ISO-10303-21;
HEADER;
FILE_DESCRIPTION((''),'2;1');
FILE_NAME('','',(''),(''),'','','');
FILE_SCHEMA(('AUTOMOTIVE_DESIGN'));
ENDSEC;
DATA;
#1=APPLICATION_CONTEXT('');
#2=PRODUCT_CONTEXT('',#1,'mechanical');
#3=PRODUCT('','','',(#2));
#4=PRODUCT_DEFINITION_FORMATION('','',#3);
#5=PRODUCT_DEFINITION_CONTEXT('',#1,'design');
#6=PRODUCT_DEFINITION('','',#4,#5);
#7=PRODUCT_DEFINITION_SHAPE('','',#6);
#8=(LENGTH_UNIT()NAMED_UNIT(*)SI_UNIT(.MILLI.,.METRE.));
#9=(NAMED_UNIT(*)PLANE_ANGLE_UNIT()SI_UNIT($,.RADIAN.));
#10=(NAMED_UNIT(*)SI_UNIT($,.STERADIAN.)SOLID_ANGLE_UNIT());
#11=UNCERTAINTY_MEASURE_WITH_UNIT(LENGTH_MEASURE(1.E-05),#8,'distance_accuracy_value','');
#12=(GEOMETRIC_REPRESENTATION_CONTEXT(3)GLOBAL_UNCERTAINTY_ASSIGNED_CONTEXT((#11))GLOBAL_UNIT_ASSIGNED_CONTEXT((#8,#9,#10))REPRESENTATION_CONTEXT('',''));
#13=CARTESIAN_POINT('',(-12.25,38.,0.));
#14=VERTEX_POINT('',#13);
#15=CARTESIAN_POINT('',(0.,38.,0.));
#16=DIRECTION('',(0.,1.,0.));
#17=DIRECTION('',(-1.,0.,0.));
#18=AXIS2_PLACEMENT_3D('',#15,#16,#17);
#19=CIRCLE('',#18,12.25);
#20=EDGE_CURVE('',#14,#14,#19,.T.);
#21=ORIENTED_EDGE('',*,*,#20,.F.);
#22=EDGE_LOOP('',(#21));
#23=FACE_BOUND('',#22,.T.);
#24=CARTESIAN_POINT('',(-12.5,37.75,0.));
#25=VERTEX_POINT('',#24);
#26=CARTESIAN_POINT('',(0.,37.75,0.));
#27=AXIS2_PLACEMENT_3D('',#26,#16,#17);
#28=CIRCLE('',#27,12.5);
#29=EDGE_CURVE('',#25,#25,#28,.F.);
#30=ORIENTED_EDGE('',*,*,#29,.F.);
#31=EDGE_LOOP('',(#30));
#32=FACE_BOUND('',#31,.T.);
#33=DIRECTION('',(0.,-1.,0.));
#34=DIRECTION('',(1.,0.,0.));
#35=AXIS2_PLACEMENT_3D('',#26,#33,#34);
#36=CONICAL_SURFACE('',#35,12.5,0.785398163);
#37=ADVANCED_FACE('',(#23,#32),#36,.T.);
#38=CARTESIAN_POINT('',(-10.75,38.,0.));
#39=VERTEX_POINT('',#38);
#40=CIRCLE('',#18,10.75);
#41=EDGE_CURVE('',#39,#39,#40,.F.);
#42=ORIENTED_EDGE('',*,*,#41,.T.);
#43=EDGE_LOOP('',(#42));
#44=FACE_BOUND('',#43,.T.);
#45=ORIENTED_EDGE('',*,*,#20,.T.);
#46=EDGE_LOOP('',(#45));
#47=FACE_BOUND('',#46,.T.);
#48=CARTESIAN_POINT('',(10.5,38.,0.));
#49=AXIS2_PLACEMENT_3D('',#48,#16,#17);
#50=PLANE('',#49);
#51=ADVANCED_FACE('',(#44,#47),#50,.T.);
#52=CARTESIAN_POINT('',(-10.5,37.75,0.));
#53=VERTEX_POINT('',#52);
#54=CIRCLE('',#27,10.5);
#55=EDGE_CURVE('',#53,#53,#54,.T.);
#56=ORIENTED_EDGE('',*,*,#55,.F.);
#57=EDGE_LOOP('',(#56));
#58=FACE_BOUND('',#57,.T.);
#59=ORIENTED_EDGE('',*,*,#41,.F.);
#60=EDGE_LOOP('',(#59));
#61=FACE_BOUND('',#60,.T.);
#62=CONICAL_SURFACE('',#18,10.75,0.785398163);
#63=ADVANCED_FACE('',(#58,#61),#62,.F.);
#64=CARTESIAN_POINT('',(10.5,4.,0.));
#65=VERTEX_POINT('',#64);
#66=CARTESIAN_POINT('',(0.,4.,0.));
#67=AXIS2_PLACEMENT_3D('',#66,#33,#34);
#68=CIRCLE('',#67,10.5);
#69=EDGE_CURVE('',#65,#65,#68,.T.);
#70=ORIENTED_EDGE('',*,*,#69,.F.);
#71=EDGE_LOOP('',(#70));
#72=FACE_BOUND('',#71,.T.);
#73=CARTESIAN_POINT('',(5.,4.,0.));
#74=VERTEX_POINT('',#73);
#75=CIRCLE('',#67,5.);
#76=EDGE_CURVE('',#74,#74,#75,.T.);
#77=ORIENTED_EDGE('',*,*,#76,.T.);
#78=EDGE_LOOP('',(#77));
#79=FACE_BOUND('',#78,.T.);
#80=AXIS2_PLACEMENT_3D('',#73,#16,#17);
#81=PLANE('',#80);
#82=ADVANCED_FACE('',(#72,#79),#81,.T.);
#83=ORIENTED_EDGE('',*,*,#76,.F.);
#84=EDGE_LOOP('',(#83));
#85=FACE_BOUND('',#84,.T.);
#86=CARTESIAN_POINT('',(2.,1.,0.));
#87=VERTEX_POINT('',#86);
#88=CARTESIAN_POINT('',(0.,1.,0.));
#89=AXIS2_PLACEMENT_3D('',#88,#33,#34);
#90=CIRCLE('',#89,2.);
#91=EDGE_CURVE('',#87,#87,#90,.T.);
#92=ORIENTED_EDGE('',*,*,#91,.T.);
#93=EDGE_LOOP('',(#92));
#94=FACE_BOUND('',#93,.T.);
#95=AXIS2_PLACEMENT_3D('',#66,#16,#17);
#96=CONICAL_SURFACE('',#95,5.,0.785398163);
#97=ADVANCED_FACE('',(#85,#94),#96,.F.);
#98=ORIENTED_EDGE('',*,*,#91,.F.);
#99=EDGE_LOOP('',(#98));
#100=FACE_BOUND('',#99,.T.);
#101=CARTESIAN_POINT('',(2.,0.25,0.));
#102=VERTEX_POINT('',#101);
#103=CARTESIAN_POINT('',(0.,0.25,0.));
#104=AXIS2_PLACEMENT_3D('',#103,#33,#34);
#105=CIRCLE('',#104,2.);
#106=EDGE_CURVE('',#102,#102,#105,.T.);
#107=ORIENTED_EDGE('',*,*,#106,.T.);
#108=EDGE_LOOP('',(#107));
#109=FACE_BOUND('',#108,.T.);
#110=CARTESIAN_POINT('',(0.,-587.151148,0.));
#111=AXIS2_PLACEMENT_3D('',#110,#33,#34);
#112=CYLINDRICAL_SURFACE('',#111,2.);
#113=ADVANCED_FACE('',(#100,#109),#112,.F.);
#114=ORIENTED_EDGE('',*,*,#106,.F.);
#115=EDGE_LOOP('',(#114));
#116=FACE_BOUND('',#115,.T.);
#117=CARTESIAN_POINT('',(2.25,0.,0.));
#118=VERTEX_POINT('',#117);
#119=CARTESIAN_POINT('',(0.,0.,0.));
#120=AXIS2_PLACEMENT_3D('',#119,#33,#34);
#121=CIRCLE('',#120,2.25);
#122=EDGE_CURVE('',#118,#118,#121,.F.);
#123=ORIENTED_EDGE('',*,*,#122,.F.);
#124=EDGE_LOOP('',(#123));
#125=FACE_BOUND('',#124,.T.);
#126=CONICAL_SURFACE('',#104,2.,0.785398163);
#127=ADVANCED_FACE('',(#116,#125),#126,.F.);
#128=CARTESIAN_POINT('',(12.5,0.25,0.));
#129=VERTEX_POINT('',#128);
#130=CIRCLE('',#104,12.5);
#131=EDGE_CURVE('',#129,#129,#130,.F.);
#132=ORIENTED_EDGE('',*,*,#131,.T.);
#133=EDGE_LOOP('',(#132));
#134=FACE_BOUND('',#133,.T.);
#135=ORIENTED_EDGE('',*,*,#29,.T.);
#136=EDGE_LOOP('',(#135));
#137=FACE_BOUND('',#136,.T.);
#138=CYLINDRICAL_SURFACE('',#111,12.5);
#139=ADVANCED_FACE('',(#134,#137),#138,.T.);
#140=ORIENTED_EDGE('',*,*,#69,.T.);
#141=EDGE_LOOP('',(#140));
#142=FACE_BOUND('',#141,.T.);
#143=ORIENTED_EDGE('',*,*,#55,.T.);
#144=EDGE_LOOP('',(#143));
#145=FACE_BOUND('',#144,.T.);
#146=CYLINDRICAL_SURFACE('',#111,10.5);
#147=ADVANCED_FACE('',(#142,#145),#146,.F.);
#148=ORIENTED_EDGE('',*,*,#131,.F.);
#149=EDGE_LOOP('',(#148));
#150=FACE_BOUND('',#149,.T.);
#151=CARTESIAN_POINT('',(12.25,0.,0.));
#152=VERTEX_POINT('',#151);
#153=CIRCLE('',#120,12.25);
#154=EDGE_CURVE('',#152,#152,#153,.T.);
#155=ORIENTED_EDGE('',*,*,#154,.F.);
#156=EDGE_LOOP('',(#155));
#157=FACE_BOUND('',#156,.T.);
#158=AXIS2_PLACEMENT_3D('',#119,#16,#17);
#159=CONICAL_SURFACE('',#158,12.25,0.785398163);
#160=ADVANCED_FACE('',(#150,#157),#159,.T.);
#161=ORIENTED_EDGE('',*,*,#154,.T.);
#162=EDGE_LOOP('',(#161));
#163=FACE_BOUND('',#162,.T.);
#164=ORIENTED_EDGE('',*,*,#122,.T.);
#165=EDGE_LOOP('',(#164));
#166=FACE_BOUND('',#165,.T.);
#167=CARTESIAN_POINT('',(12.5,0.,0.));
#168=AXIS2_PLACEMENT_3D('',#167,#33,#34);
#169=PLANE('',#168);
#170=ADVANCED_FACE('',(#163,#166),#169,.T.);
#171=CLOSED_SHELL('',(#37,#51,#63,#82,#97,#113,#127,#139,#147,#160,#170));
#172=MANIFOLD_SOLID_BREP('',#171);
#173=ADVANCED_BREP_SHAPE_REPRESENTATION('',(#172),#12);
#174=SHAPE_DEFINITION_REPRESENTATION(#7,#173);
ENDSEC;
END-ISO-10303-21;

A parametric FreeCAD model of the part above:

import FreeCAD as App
import Part
import Sketcher
Q = App.Units.Quantity


def edges_at(feature, points):
    """Names of the edges that pass closest to the given points."""
    edges = feature.Shape.Edges
    near = lambda p: min(range(len(edges)), key=lambda i: edges[i].distToShape(Part.Vertex(*p))[0])
    return sorted({f"Edge{near(p) + 1}" for p in points})


def add_polygon(sketch, points):
    """Adds a closed chain of lines whose ends are joined by coincident constraints."""
    first, n = sketch.GeometryCount, len(points)
    for a, b in zip(points, points[1:] + points[:1]):
        sketch.addGeometry(Part.LineSegment(App.Vector(*a, 0), App.Vector(*b, 0)), False)
    for i in range(n):
        sketch.addConstraint(Sketcher.Constraint("Coincident", first + i, 2, first + (i + 1) % n, 1))

doc = App.newDocument("Part")
body = doc.addObject("PartDesign::Body", "Body")

# Sketch on XY plane
sketch1 = body.newObject("Sketcher::SketchObject", "Sketch")
sketch1.AttachmentSupport = (doc.getObject("XY_Plane"), [""])
sketch1.MapMode = "FlatFace"
add_polygon(sketch1, [(2, 1), (2, 0), (12.5, 0), (12.5, 38), (10.5, 38), (10.5, 4), (5, 4)])  # lines 0-6
sketch1.addConstraint(Sketcher.Constraint("Vertical", 0))
sketch1.addConstraint(Sketcher.Constraint("Horizontal", 1))
sketch1.addConstraint(Sketcher.Constraint("Vertical", 2))
sketch1.addConstraint(Sketcher.Constraint("Horizontal", 3))
sketch1.addConstraint(Sketcher.Constraint("Vertical", 4))
sketch1.addConstraint(Sketcher.Constraint("Horizontal", 5))
sketch1.addConstraint(Sketcher.Constraint("PointOnObject", 0, 2, -1))
sketch1.addConstraint(Sketcher.Constraint("DistanceX", 3, 2, 3, 1, Q("2 mm")))
sketch1.addConstraint(Sketcher.Constraint("DistanceY", 0, 2, 0, 1, Q("1 mm")))
sketch1.addConstraint(Sketcher.Constraint("DistanceY", 2, 1, 2, 2, Q("38 mm")))
sketch1.addConstraint(Sketcher.Constraint("DistanceY", 4, 2, 4, 1, Q("34 mm")))
sketch1.addConstraint(Sketcher.Constraint("Angle", 6, Q("-135 deg")))
sketch1.addConstraint(Sketcher.Constraint("DistanceX", 1, 1, 1, 2, Q("10.5 mm")))
sketch1.addConstraint(Sketcher.Constraint("DistanceX", -1, 1, 0, 2, Q("2 mm")))
revolution = body.newObject("PartDesign::Revolution", "Revolution")
revolution.Profile = sketch1
revolution.ReferenceAxis = (sketch1, ["V_Axis"])
revolution.Angle = 360
doc.recompute()

chamfer = body.newObject("PartDesign::Chamfer", "Chamfer")
chamfer.Base = (revolution, edges_at(revolution, [
    (-12.5, 0, 0),
    (-12.5, 38, 0),
    (-10.5, 38, 0),
    (-2, 0, 0),
]))
chamfer.Size = 0.25

doc.recompute()
